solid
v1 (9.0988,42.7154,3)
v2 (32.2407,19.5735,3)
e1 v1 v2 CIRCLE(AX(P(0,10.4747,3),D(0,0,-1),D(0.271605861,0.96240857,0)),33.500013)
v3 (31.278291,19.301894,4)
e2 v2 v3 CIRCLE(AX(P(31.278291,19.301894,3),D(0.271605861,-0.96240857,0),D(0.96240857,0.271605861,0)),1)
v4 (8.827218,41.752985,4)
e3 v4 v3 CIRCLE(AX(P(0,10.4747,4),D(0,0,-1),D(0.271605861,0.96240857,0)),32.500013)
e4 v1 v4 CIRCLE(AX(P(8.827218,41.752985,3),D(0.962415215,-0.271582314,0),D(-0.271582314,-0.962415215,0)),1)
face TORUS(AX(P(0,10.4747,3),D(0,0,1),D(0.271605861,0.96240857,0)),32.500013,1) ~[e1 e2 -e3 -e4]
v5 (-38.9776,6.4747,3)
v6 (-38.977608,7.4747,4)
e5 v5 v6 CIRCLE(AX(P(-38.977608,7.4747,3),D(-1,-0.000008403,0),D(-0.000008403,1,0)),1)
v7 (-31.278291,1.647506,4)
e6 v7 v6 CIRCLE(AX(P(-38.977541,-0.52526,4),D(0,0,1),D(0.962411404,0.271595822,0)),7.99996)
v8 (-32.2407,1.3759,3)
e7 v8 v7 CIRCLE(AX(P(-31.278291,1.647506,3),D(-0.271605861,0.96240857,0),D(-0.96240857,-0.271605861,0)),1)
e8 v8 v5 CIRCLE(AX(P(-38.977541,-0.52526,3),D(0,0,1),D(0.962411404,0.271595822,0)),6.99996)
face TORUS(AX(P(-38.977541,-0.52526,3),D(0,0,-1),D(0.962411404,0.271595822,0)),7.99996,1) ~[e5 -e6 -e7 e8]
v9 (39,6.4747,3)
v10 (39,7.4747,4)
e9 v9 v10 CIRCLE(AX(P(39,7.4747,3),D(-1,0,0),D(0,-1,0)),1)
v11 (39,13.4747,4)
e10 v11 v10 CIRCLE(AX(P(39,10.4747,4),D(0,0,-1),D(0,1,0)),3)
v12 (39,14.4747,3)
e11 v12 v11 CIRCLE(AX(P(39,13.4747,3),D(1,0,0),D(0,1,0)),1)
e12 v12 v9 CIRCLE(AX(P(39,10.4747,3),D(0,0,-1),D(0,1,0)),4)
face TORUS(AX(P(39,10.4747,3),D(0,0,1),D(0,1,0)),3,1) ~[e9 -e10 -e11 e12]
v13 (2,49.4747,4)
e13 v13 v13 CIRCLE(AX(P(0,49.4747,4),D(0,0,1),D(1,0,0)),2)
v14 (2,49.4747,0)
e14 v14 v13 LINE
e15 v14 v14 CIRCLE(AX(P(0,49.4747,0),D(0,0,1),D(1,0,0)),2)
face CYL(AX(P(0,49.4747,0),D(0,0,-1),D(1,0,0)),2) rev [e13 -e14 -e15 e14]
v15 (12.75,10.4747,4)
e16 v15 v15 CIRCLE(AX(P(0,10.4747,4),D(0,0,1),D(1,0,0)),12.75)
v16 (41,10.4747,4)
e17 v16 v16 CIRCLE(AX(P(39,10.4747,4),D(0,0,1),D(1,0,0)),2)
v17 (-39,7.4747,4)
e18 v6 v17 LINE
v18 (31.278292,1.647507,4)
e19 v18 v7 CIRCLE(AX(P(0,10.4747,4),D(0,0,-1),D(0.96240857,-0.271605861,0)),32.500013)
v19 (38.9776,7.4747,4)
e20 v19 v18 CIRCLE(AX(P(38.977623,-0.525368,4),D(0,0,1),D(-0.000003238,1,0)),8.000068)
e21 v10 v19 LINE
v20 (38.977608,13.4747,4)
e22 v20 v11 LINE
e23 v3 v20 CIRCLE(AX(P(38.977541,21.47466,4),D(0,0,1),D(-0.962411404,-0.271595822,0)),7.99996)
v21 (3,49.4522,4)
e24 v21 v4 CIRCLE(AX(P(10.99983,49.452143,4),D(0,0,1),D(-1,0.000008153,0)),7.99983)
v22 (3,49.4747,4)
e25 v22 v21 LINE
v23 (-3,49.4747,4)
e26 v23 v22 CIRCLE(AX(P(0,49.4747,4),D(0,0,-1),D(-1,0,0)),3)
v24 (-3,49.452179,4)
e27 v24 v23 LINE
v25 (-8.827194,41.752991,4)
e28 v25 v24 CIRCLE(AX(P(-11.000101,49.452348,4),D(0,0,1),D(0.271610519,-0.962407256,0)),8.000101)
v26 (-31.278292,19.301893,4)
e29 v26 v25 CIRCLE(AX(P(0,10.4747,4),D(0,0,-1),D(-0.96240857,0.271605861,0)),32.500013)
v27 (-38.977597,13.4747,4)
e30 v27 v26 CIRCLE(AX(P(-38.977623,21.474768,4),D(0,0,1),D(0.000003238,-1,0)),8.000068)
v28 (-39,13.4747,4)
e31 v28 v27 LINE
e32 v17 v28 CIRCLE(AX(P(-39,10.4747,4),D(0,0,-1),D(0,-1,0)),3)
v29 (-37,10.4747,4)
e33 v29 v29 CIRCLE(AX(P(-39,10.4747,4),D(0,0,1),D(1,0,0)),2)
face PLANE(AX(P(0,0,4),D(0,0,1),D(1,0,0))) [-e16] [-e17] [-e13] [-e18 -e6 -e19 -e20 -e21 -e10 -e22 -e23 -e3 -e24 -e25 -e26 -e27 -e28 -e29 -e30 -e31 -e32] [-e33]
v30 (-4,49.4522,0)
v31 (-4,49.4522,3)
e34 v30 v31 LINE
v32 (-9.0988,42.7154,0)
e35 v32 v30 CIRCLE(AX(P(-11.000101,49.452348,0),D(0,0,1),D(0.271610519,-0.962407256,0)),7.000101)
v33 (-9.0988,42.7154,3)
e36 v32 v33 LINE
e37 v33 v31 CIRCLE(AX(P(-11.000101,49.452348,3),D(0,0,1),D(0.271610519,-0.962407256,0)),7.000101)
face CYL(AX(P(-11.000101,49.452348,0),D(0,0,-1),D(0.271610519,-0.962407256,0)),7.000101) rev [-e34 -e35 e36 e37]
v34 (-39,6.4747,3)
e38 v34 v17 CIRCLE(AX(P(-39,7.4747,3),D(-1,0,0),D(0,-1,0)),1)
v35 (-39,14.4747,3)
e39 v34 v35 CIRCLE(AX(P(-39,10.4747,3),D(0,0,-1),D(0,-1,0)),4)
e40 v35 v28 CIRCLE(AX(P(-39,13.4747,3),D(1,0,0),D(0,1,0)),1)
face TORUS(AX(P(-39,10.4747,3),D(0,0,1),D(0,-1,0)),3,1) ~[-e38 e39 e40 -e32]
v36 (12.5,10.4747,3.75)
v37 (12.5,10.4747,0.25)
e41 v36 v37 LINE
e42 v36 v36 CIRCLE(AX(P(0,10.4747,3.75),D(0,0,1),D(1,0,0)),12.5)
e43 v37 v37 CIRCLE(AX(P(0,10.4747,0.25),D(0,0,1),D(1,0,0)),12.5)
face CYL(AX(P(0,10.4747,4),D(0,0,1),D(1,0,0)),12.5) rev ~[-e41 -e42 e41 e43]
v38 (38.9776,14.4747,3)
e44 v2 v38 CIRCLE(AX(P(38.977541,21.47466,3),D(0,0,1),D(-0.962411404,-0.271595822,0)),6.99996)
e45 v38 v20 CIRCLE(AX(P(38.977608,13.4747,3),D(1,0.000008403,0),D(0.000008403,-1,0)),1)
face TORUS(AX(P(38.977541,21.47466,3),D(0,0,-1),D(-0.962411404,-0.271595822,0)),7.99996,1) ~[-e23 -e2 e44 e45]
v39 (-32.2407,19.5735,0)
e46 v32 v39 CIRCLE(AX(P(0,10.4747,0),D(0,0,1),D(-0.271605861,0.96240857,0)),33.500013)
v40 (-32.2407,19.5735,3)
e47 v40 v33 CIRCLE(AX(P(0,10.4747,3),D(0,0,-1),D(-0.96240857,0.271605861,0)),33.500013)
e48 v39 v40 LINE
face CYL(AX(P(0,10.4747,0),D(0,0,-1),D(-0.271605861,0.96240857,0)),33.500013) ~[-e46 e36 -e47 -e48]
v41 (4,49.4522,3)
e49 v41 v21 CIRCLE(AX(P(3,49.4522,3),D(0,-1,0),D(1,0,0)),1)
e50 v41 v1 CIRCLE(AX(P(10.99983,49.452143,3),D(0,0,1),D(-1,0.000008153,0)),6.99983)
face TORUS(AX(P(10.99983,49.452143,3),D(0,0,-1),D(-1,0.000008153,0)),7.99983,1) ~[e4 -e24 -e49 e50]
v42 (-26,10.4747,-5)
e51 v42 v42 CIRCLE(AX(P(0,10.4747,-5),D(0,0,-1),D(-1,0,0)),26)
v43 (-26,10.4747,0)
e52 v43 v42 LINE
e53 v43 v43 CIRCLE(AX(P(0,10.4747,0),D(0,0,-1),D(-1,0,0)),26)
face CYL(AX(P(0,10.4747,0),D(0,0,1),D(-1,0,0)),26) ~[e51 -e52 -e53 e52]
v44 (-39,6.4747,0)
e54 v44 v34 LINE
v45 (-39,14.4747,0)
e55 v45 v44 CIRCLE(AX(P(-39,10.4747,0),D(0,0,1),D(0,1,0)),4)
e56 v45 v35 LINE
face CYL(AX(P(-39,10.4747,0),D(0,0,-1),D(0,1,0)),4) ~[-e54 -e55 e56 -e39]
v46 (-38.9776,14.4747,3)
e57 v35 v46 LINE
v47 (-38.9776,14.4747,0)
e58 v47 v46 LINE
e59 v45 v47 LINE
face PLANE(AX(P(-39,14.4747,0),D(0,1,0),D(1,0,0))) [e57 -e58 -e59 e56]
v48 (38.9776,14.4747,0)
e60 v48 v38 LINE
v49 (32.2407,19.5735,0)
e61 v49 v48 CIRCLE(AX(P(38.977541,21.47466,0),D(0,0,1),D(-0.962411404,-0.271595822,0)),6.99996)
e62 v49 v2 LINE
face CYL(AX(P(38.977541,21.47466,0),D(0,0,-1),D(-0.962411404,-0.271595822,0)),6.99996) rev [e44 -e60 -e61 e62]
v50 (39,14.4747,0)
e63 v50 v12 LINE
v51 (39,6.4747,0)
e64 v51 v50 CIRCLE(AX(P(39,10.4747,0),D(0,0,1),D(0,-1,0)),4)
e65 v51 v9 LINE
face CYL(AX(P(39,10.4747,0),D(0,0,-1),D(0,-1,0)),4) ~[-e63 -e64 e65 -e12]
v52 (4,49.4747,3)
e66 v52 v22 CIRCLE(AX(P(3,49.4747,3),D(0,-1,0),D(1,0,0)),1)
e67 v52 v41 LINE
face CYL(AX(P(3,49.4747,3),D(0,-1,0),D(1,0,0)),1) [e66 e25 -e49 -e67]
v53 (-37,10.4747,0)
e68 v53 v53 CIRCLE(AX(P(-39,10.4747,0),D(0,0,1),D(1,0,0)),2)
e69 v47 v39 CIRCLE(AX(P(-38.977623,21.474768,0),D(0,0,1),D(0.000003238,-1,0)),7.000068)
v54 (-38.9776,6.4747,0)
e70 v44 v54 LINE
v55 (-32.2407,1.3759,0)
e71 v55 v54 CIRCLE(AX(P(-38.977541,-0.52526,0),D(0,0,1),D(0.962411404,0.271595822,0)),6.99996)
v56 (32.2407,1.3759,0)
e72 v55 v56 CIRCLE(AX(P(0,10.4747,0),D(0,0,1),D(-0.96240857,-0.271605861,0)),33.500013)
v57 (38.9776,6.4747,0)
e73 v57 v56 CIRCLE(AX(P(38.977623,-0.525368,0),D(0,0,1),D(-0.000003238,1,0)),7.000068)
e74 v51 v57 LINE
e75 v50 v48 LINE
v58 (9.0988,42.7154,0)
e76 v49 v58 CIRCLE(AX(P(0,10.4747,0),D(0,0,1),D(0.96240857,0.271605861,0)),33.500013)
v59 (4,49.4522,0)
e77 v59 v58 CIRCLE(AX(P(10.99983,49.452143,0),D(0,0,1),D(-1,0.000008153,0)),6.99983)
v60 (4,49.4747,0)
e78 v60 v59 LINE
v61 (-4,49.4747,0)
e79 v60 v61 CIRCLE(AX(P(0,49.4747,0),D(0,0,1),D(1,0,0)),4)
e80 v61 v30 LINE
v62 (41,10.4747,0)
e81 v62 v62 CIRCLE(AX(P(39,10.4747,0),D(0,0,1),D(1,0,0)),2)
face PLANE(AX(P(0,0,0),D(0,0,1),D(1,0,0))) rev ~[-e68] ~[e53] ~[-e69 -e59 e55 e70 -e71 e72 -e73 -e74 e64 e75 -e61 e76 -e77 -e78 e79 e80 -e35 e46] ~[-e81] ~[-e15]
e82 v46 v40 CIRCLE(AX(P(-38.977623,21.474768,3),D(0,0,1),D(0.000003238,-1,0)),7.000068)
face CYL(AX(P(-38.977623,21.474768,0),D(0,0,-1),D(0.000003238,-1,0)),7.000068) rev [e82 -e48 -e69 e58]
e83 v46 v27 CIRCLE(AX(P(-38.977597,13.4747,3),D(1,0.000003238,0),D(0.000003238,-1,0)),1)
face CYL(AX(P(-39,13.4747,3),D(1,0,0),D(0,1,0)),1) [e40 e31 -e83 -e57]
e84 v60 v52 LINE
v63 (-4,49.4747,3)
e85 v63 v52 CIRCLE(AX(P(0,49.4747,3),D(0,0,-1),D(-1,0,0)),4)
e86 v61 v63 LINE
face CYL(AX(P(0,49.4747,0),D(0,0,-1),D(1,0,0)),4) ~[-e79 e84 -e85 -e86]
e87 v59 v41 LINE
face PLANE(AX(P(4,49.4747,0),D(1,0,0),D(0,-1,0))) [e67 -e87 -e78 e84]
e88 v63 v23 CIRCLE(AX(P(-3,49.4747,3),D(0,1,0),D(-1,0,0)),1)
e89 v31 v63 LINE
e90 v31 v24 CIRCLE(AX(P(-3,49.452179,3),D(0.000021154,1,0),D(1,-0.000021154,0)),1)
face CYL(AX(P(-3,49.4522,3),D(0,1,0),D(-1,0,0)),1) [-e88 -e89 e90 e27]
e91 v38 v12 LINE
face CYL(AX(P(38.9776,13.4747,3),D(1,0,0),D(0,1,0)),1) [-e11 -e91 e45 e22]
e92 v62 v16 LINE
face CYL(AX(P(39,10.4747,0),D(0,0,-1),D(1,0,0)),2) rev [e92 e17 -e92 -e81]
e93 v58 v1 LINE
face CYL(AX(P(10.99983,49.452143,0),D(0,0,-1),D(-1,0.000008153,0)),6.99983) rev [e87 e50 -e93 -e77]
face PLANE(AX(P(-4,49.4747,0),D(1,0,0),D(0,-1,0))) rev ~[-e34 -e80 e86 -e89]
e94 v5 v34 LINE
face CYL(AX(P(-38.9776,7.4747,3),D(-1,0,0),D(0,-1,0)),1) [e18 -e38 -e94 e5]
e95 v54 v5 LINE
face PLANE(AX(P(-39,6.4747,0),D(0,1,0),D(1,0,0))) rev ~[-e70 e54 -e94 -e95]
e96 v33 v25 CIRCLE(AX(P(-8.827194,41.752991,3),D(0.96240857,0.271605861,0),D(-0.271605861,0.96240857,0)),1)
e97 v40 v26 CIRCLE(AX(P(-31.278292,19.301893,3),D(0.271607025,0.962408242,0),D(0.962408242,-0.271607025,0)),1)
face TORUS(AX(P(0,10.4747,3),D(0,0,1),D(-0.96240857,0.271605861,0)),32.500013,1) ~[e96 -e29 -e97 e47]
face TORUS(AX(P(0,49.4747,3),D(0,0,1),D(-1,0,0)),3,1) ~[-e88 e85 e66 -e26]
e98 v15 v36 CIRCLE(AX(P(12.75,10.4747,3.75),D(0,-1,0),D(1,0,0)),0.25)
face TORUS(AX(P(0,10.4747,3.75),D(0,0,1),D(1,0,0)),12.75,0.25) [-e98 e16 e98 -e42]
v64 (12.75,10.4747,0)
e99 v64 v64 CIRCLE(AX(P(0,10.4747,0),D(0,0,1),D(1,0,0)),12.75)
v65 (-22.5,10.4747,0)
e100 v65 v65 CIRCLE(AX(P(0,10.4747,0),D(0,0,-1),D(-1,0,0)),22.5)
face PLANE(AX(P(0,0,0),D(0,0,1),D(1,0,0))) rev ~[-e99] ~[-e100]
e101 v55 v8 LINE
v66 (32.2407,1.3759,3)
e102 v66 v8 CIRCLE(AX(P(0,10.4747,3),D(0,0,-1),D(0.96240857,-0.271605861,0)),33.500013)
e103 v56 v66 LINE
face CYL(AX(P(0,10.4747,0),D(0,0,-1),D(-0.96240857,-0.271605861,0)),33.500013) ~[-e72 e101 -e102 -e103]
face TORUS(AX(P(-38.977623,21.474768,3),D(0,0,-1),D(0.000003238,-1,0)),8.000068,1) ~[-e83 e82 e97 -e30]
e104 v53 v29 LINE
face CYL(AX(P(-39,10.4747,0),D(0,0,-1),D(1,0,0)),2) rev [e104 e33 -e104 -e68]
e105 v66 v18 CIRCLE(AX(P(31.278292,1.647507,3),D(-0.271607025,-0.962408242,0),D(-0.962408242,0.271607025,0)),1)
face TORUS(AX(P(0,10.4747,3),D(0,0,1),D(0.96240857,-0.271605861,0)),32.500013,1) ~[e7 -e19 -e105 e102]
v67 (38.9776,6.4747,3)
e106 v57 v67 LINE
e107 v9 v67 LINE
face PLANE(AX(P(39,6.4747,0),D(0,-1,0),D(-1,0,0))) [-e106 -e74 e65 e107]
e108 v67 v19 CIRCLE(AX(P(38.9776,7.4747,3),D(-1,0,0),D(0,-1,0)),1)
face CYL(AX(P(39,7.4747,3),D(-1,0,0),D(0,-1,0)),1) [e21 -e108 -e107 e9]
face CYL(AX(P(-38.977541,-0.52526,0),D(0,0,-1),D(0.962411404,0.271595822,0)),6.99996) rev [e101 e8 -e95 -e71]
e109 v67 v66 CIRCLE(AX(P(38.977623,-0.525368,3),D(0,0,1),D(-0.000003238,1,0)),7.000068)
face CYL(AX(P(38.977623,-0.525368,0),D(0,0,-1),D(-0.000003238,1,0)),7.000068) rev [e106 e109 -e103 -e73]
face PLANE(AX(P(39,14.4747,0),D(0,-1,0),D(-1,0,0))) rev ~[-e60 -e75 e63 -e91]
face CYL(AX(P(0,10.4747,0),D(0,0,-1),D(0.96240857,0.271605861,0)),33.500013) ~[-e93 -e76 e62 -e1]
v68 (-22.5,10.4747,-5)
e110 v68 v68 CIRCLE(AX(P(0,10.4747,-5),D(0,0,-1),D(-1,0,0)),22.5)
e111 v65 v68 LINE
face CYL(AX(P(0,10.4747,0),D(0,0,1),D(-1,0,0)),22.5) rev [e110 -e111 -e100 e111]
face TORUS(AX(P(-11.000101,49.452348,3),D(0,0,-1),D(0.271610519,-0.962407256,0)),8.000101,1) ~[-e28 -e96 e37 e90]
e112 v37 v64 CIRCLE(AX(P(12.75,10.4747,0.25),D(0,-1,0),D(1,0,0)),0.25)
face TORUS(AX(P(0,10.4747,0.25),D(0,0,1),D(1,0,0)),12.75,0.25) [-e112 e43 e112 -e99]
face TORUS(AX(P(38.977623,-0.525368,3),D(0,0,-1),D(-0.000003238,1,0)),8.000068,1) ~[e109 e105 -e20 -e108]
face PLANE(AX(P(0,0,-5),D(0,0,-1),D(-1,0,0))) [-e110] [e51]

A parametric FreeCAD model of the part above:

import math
import FreeCAD as App
import Part
import Sketcher

V = App.Vector


def edges_at(feature, points):
    """Names of the edges that pass closest to the given points."""
    edges = feature.Shape.Edges
    near = lambda p: min(range(len(edges)), key=lambda i: edges[i].distToShape(Part.Vertex(*p))[0])
    return sorted({f"Edge{near(p) + 1}" for p in points})

doc = App.newDocument("Part")
body = doc.addObject("PartDesign::Body", "Body")

# Sketch on XY plane
sketch1 = body.newObject("Sketcher::SketchObject", "Sketch")
sketch1.AttachmentSupport = (doc.getObject("XY_Plane"), [""])
sketch1.MapMode = "FlatFace"
sketch1.addGeometry([
    Part.LineSegment(V(4, 49.4522, 0), V(4, 49.4747, 0)),  # 0
    Part.ArcOfCircle(Part.Circle(V(0, 49.4747, 0), V(0, 0, 1), 4), math.radians(0), math.radians(180)),  # 1
    Part.LineSegment(V(-4, 49.4747, 0), V(-4, 49.4522, 0)),  # 2
    Part.ArcOfCircle(Part.Circle(V(-11, 49.4522, 0), V(0, 0, 1), 6.999931), math.radians(-74.240343), math.radians(0)),  # 3
    Part.ArcOfCircle(Part.Circle(V(0, 10.4747, 0), V(0, 0, 1), 33.500013), math.radians(105.759847), math.radians(164.240153)),  # 4
    Part.ArcOfCircle(Part.Circle(V(-38.9776, 21.4747, 0), V(0, 0, 1), 7), math.radians(-90), math.radians(-15.759435)),  # 5
    Part.LineSegment(V(-38.9776, 14.4747, 0), V(-39, 14.4747, 0)),  # 6
    Part.ArcOfCircle(Part.Circle(V(-39, 10.4747, 0), V(0, 0, 1), 4), math.radians(90), math.radians(270)),  # 7
    Part.LineSegment(V(-39, 6.4747, 0), V(-38.9776, 6.4747, 0)),  # 8
    Part.ArcOfCircle(Part.Circle(V(-38.9776, -0.5253, 0), V(0, 0, 1), 7.000027), math.radians(15.759435), math.radians(90)),  # 9
    Part.ArcOfCircle(Part.Circle(V(0, 10.4747, 0), V(0, 0, 1), 33.500013), math.radians(-164.240153), math.radians(-15.759847)),  # 10
    Part.ArcOfCircle(Part.Circle(V(38.9776, -0.5253, 0), V(0, 0, 1), 7), math.radians(90), math.radians(164.240565)),  # 11
    Part.LineSegment(V(38.9776, 6.4747, 0), V(39, 6.4747, 0)),  # 12
    Part.ArcOfCircle(Part.Circle(V(39, 10.4747, 0), V(0, 0, 1), 4), math.radians(-90), math.radians(90)),  # 13
    Part.LineSegment(V(39, 14.4747, 0), V(38.9776, 14.4747, 0)),  # 14
    Part.ArcOfCircle(Part.Circle(V(38.9776, 21.4747, 0), V(0, 0, 1), 7.000027), math.radians(-164.240565), math.radians(-90)),  # 15
    Part.ArcOfCircle(Part.Circle(V(0, 10.4747, 0), V(0, 0, 1), 33.500013), math.radians(15.759847), math.radians(74.240153)),  # 16
    Part.ArcOfCircle(Part.Circle(V(11, 49.4522, 0), V(0, 0, 1), 7), math.radians(180), math.radians(254.240343)),  # 17
    Part.Circle(V(-39, 10.4747, 0), V(0, 0, 1), 2),  # 18
    Part.Circle(V(39, 10.4747, 0), V(0, 0, 1), 2),  # 19
    Part.Circle(V(0, 49.4747, 0), V(0, 0, 1), 2),  # 20
], False)
sketch1.addConstraint([
    Sketcher.Constraint("Tangent", 0, 2, 1, 1),
    Sketcher.Constraint("Tangent", 1, 2, 2, 1),
    Sketcher.Constraint("Tangent", 2, 2, 3, 2),
    Sketcher.Constraint("Tangent", 3, 1, 4, 1),
    Sketcher.Constraint("Tangent", 4, 2, 5, 2),
    Sketcher.Constraint("Tangent", 5, 1, 6, 1),
    Sketcher.Constraint("Tangent", 6, 2, 7, 1),
    Sketcher.Constraint("Tangent", 7, 2, 8, 1),
    Sketcher.Constraint("Tangent", 8, 2, 9, 2),
    Sketcher.Constraint("Tangent", 9, 1, 10, 1),
    Sketcher.Constraint("Tangent", 10, 2, 11, 2),
    Sketcher.Constraint("Tangent", 11, 1, 12, 1),
    Sketcher.Constraint("Tangent", 12, 2, 13, 1),
    Sketcher.Constraint("Tangent", 13, 2, 14, 1),
    Sketcher.Constraint("Tangent", 14, 2, 15, 2),
    Sketcher.Constraint("Tangent", 15, 1, 16, 1),
    Sketcher.Constraint("Tangent", 16, 2, 17, 2),
    Sketcher.Constraint("Tangent", 17, 1, 0, 1),
    Sketcher.Constraint("Vertical", 0),
    Sketcher.Constraint("Vertical", 2),
    Sketcher.Constraint("Horizontal", 6),
    Sketcher.Constraint("Horizontal", 8),
    Sketcher.Constraint("Horizontal", 12),
    Sketcher.Constraint("Horizontal", 14),
    Sketcher.Constraint("Coincident", 10, 3, 4, 3),
    Sketcher.Constraint("Coincident", 16, 3, 4, 3),
    Sketcher.Constraint("Coincident", 18, 3, 7, 3),
    Sketcher.Constraint("Coincident", 19, 3, 13, 3),
    Sketcher.Constraint("Coincident", 20, 3, 1, 3),
    Sketcher.Constraint("Equal", 3, 5),
    Sketcher.Constraint("Equal", 1, 7),
    Sketcher.Constraint("Equal", 5, 9),
    Sketcher.Constraint("Equal", 4, 10),
    Sketcher.Constraint("Equal", 9, 11),
    Sketcher.Constraint("Equal", 7, 13),
    Sketcher.Constraint("Equal", 11, 15),
    Sketcher.Constraint("Equal", 10, 16),
    Sketcher.Constraint("Equal", 15, 17),
    Sketcher.Constraint("Equal", 18, 19),
    Sketcher.Constraint("Equal", 19, 20),
    Sketcher.Constraint("Symmetric", 9, 3, 11, 3, -2),
    Sketcher.Constraint("PointOnObject", 1, 3, -2),
    Sketcher.Constraint("Horizontal", 4, 3, 7, 3),
    Sketcher.Constraint("Equal", 8, 12),
    Sketcher.Constraint("Equal", 14, 0),
    Sketcher.Constraint("Radius", 3, 7.0),
    Sketcher.Constraint("Radius", 4, 33.5),
    Sketcher.Constraint("Diameter", 18, 4.0),
    Sketcher.Constraint("Radius", 1, 4.0),
    Sketcher.Constraint("DistanceX", 7, 3, -1, 1, 39.0),
    Sketcher.Constraint("DistanceY", -1, 1, 9, 1, 1.376),
])
pad1 = body.newObject("PartDesign::Pad", "Pad")
pad1.Profile = sketch1
pad1.Length = 4
doc.recompute()

fillet = body.newObject("PartDesign::Fillet", "Fillet")
fillet.Base = (pad1, edges_at(pad1, [
    (-34.753, 15.893, 4),
    (-38.989, 14.475, 4),
    (-43, 10.475, 4),
    (-38.989, 6.475, 4),
    (-34.753, 5.056, 4),
    (0, -23.025, 4),
    (34.753, 5.056, 4),
    (38.989, 6.475, 4),
    (43, 10.475, 4),
    (38.989, 14.475, 4),
    (34.753, 15.893, 4),
    (23.688, 34.163, 4),
    (5.418, 45.228, 4),
    (4, 49.464, 4),
    (0, 53.475, 4),
    (-4, 49.464, 4),
    (-5.418, 45.228, 4),
    (-23.688, 34.163, 4),
]))
fillet.Radius = 1

# Sketch on XY plane
sketch2 = body.newObject("Sketcher::SketchObject", "Sketch001")
sketch2.AttachmentSupport = (doc.getObject("XY_Plane"), [""])
sketch2.MapMode = "FlatFace"
sketch2.addGeometry([
    Part.Circle(V(0, 10.4747, 0), V(0, 0, 1), 26),
    Part.Circle(V(0, 10.4747, 0), V(0, 0, 1), 22.5),
], False)
sketch2.addConstraint([
    Sketcher.Constraint("Coincident", 1, 3, 0, 3),
    Sketcher.Constraint("PointOnObject", 0, 3, -2),
    Sketcher.Constraint("Diameter", 1, 45.0),
    Sketcher.Constraint("Diameter", 0, 52.0),
    Sketcher.Constraint("DistanceY", -1, 1, 0, 3, 10.4747),
])
pad2 = body.newObject("PartDesign::Pad", "Pad001")
pad2.Profile = sketch2
pad2.Length = 5
pad2.Reversed = True

# Sketch on XY plane
sketch3 = body.newObject("Sketcher::SketchObject", "Sketch002")
sketch3.AttachmentSupport = (doc.getObject("XY_Plane"), [""])
sketch3.MapMode = "FlatFace"
sketch3.AttachmentOffset = App.Placement(V(0, 0, 4), App.Rotation())
sketch3.addGeometry(Part.Circle(V(0, 10.4747, 0), V(0, 0, 1), 12.5), False)
sketch3.addConstraint([
    Sketcher.Constraint("PointOnObject", 0, 3, -2),
    Sketcher.Constraint("Diameter", 0, 25.0),
    Sketcher.Constraint("DistanceY", -1, 1, 0, 3, 10.4747),
])
pocket1 = body.newObject("PartDesign::Pocket", "Pocket")
pocket1.Profile = sketch3
pocket1.Type = "UpToFirst"
doc.recompute()

fillet2 = body.newObject("PartDesign::Fillet", "Fillet001")
fillet2.Base = (pocket1, edges_at(pocket1, [(-12.5, 10.475, 0), (-12.5, 10.475, 4)]))
fillet2.Radius = 0.25

doc.recompute()
